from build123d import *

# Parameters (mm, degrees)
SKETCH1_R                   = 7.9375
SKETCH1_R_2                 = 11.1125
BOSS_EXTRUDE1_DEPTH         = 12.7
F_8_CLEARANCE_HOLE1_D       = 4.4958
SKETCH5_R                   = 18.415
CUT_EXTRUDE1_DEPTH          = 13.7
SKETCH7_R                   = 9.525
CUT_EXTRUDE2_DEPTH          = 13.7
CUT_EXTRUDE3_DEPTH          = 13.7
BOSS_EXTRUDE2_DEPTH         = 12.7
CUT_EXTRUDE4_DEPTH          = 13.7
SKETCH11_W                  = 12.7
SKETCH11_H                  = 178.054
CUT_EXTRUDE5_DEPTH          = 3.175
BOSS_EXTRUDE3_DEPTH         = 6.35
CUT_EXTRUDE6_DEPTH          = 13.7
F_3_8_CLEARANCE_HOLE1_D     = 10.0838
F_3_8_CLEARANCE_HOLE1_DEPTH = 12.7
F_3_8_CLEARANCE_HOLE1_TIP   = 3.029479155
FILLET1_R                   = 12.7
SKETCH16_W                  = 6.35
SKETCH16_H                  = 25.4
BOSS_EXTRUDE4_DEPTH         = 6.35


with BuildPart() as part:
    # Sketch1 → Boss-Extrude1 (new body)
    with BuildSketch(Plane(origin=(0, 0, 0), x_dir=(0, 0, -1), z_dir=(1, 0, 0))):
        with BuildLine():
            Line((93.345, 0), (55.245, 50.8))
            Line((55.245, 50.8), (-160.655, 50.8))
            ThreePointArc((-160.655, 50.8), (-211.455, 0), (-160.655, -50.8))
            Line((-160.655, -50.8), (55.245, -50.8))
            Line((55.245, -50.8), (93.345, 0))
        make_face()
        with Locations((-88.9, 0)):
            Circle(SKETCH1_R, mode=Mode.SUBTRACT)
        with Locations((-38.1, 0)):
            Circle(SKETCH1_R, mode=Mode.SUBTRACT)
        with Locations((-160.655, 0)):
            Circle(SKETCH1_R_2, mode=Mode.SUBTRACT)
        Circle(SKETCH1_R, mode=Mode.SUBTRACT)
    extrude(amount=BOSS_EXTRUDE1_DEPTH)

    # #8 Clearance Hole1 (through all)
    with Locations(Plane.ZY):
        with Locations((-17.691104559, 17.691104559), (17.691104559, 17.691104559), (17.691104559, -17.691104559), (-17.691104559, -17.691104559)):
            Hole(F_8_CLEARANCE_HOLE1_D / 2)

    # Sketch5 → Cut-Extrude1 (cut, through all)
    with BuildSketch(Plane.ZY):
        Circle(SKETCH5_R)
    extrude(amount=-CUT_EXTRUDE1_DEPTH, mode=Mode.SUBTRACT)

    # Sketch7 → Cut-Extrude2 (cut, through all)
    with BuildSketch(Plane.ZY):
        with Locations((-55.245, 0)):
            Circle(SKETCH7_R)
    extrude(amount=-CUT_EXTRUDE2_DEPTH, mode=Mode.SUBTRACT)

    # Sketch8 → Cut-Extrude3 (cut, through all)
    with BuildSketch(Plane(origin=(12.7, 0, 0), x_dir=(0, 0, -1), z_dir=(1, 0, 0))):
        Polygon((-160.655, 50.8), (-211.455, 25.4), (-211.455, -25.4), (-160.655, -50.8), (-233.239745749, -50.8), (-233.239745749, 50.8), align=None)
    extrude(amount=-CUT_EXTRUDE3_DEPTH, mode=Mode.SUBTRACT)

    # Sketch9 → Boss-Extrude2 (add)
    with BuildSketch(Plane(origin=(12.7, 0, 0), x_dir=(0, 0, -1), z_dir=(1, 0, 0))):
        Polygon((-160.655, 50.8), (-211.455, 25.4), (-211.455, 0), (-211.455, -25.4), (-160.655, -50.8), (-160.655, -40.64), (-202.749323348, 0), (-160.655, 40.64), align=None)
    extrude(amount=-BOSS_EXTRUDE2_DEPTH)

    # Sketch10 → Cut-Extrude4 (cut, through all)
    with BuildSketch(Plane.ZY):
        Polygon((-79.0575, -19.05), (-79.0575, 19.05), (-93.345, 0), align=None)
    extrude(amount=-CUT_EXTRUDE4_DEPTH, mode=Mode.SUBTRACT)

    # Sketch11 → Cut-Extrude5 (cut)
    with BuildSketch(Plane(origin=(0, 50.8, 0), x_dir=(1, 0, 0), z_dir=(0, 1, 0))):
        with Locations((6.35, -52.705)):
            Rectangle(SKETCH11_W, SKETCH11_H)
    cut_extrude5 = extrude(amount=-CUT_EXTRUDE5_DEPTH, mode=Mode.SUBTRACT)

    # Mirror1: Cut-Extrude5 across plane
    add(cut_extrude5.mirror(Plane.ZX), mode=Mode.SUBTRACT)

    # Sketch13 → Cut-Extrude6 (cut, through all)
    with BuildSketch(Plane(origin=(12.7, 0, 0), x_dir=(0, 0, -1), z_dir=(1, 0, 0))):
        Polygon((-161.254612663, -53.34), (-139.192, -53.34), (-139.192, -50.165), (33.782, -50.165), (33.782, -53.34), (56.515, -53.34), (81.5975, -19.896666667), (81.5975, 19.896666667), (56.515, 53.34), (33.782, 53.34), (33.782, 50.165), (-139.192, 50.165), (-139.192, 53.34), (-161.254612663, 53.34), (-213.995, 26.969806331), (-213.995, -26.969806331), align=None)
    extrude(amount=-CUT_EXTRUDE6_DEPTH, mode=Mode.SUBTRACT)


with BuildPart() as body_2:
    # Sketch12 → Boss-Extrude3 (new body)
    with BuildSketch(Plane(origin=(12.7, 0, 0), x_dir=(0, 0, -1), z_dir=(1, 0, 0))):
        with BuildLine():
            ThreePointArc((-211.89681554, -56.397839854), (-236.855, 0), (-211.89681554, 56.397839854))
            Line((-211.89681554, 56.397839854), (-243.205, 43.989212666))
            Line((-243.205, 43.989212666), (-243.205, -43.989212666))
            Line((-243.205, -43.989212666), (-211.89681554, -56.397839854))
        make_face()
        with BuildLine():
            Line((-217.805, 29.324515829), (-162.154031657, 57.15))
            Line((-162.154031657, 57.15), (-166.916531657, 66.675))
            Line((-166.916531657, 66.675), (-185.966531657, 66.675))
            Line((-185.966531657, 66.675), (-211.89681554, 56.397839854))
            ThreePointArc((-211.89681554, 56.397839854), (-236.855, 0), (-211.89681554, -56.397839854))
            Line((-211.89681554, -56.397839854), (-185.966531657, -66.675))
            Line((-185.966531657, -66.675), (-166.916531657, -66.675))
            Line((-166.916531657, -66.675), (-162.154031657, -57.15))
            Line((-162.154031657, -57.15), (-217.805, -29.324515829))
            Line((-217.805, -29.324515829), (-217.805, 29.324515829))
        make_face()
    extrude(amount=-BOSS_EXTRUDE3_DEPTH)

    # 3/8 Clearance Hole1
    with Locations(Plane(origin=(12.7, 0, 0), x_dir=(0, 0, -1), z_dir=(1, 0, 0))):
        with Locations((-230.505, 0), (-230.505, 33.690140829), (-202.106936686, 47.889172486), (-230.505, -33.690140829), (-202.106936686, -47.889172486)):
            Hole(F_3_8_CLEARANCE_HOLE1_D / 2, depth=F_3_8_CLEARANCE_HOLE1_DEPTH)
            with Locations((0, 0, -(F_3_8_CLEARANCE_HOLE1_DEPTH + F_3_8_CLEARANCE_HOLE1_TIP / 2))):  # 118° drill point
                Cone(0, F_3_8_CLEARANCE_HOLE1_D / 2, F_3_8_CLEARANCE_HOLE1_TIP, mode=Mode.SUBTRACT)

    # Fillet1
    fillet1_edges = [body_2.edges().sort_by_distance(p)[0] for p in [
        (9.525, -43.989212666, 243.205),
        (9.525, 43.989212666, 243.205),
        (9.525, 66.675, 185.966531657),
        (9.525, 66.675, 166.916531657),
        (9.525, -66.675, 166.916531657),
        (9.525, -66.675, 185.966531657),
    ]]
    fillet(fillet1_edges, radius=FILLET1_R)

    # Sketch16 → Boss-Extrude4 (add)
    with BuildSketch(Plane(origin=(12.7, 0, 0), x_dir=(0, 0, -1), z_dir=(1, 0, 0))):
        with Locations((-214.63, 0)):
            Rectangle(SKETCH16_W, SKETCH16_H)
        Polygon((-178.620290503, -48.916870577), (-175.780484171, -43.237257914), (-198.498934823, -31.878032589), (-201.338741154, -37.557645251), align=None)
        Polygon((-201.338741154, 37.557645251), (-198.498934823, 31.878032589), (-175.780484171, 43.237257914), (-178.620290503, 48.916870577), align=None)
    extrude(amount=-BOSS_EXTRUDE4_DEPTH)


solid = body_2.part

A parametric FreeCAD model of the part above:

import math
import FreeCAD as App
import Part
import Sketcher

V = App.Vector
Q = App.Units.Quantity


def edges_at(feature, points):
    """Names of the edges that pass closest to the given points."""
    edges = feature.Shape.Edges
    near = lambda p: min(range(len(edges)), key=lambda i: edges[i].distToShape(Part.Vertex(*p))[0])
    return sorted({f"Edge{near(p) + 1}" for p in points})


def add_polygon(sketch, points):
    """Adds a closed chain of lines whose ends are joined by coincident constraints."""
    first, n = sketch.GeometryCount, len(points)
    for a, b in zip(points, points[1:] + points[:1]):
        sketch.addGeometry(Part.LineSegment(App.Vector(*a, 0), App.Vector(*b, 0)), False)
    for i in range(n):
        sketch.addConstraint(Sketcher.Constraint("Coincident", first + i, 2, first + (i + 1) % n, 1))

doc = App.newDocument("Part")
body = doc.addObject("PartDesign::Body", "Body")

sketch1 = doc.addObject("Sketcher::SketchObject", "Sketch")
body.addObject(sketch1)
sketch1.AttachmentSupport = (doc.YZ_Plane, [""])
sketch1.MapMode = "FlatFace"
sketch1.addGeometry([
    Part.LineSegment(V(0, -93, 0), V(51, -55, 0)),
    Part.LineSegment(V(51, -55, 0), V(51, 161, 0)),
    Part.ArcOfCircle(Part.Circle(V(0, 161, 0), V(0, 0, 1), 51), math.radians(0), math.radians(180)),
    Part.LineSegment(V(-51, 161, 0), V(-51, -55, 0)),
    Part.LineSegment(V(-51, -55, 0), V(0, -93, 0)),
    Part.Circle(V(0, 161, 0), V(0, 0, 1), 11),
    Part.Circle(V(0, 89, 0), V(0, 0, 1), 8),
    Part.Circle(V(0, 38, 0), V(0, 0, 1), 8),
    Part.Circle(V(0, 0, 0), V(0, 0, 1), 8),
], False)
sketch1.addConstraint([
    Sketcher.Constraint("Coincident", 0, 2, 1, 1),
    Sketcher.Constraint("Tangent", 1, 2, 2, 1),
    Sketcher.Constraint("Tangent", 2, 2, 3, 1),
    Sketcher.Constraint("Coincident", 3, 2, 4, 1),
    Sketcher.Constraint("Coincident", 4, 2, 0, 1),
    Sketcher.Constraint("Vertical", 1),
    Sketcher.Constraint("Vertical", 3),
    Sketcher.Constraint("Coincident", 8, 3, -1, 1),
    Sketcher.Constraint("Coincident", 5, 3, 2, 3),
    Sketcher.Constraint("Equal", 6, 7),
    Sketcher.Constraint("Equal", 7, 8),
    Sketcher.Constraint("Symmetric", 0, 2, 3, 2, -2),
    Sketcher.Constraint("PointOnObject", 6, 3, -2),
    Sketcher.Constraint("PointOnObject", 7, 3, -2),
    Sketcher.Constraint("PointOnObject", 4, 2, -2),
    Sketcher.Constraint("Radius", 2, Q("2 in")),
    Sketcher.Constraint("Diameter", 5, Q("0.875 in")),
    Sketcher.Constraint("Diameter", 6, Q("0.625 in")),
    Sketcher.Constraint("DistanceY", 1, 1, 1, 2, Q("8.5 in")),
    Sketcher.Constraint("DistanceY", 7, 3, 6, 3, Q("2 in")),
    Sketcher.Constraint("Distance", 0, Q("2.5 in")),
    Sketcher.Constraint("DistanceY", -1, 1, 6, 3, Q("3.5 in")),
    Sketcher.Constraint("DistanceY", -1, 1, 2, 3, Q("6.325 in")),
])
pad1 = doc.addObject("PartDesign::Pad", "Pad")
body.addObject(pad1)
pad1.Profile = sketch1
pad1.Length = Q("0.5 in")

sketch2 = doc.addObject("Sketcher::SketchObject", "Sketch001")
body.addObject(sketch2)
sketch2.AttachmentSupport = (doc.YZ_Plane, [""])
sketch2.MapMode = "FlatFace"
sketch2.addGeometry([
    Part.Circle(V(17.7, -17.7, 0), V(0, 0, 1), 2.2),
    Part.Circle(V(17.7, 17.7, 0), V(0, 0, 1), 2.2),
    Part.Circle(V(-17.7, 17.7, 0), V(0, 0, 1), 2.2),
    Part.Circle(V(-17.7, -17.7, 0), V(0, 0, 1), 2.2),
], False)
sketch2.addConstraint([
    Sketcher.Constraint("Equal", 0, 1),
    Sketcher.Constraint("Equal", 1, 2),
    Sketcher.Constraint("Equal", 2, 3),
    Sketcher.Constraint("Symmetric", 0, 3, 2, 3, -1, 1),
    Sketcher.Constraint("Symmetric", 1, 3, 3, 3, -1, 1),
    Sketcher.Constraint("Symmetric", 1, 3, 2, 3, -2),
    Sketcher.Constraint("Diameter", 0, Q("0.177 in")),
    Sketcher.Constraint("DistanceX", -1, 1, 0, 3, Q("0.6965002 in")),
    Sketcher.Constraint("DistanceY", 0, 3, -1, 1, Q("0.6965002 in")),
])
doc.recompute()
hole = doc.addObject("PartDesign::Hole", "Hole")
body.addObject(hole)
hole.Profile = sketch2
hole.ThreadType = "None"
hole.Diameter = Q("0.177 in")
hole.DepthType = "ThroughAll"
hole.Reversed = True

sketch3 = doc.addObject("Sketcher::SketchObject", "Sketch002")
body.addObject(sketch3)
sketch3.AttachmentSupport = (doc.YZ_Plane, [""])
sketch3.MapMode = "FlatFace"
sketch3.addGeometry(Part.Circle(V(0, 0, 0), V(0, 0, 1), 18), False)
sketch3.addConstraint([
    Sketcher.Constraint("Coincident", 0, 3, -1, 1),
    Sketcher.Constraint("Diameter", 0, Q("1.45 in")),
])
pocket1 = doc.addObject("PartDesign::Pocket", "Pocket")
body.addObject(pocket1)
pocket1.Profile = sketch3
pocket1.Type = "ThroughAll"
pocket1.Reversed = True

sketch4 = doc.addObject("Sketcher::SketchObject", "Sketch003")
body.addObject(sketch4)
sketch4.AttachmentSupport = (doc.YZ_Plane, [""])
sketch4.MapMode = "FlatFace"
sketch4.addGeometry(Part.Circle(V(0, -55, 0), V(0, 0, 1), 10), False)
sketch4.addConstraint([
    Sketcher.Constraint("PointOnObject", 0, 3, -2),
    Sketcher.Constraint("Diameter", 0, Q("0.75 in")),
    Sketcher.Constraint("DistanceY", 0, 3, -1, 1, Q("2.175 in")),
])
pocket2 = doc.addObject("PartDesign::Pocket", "Pocket001")
body.addObject(pocket2)
pocket2.Profile = sketch4
pocket2.Type = "ThroughAll"
pocket2.Reversed = True

sketch5 = doc.addObject("Sketcher::SketchObject", "Sketch004")
body.addObject(sketch5)
sketch5.AttachmentSupport = (doc.YZ_Plane, [""])
sketch5.MapMode = "FlatFace"
sketch5.AttachmentOffset = App.Placement(V(0, 0, 0.5 * 25.4), App.Rotation())
add_polygon(sketch5, [(25, 211), (51, 161), (51, 233), (-51, 233), (-51, 161), (-25, 211)])
sketch5.addConstraint([
    Sketcher.Constraint("Vertical", 1),
    Sketcher.Constraint("Horizontal", 2),
    Sketcher.Constraint("Vertical", 3),
    Sketcher.Constraint("Horizontal", 5),
    Sketcher.Constraint("Symmetric", 0, 2, 3, 2, -2),
    Sketcher.Constraint("Equal", 0, 4),
    Sketcher.Constraint("DistanceX", 2, 2, 2, 1, Q("4 in")),
    Sketcher.Constraint("DistanceX", 5, 1, 5, 2, Q("2 in")),
    Sketcher.Constraint("DistanceY", 3, 2, 4, 2, Q("2 in")),
    Sketcher.Constraint("DistanceY", -1, 1, 0, 2, Q("6.325 in")),
    Sketcher.Constraint("DistanceY", 1, 1, 1, 2, Q("72.584746 mm")),
])
pocket3 = doc.addObject("PartDesign::Pocket", "Pocket002")
body.addObject(pocket3)
pocket3.Profile = sketch5
pocket3.Type = "ThroughAll"

sketch6 = doc.addObject("Sketcher::SketchObject", "Sketch005")
body.addObject(sketch6)
sketch6.AttachmentSupport = (doc.YZ_Plane, [""])
sketch6.MapMode = "FlatFace"
sketch6.AttachmentOffset = App.Placement(V(0, 0, 0.5 * 25.4), App.Rotation())
add_polygon(sketch6, [(51, 161), (25, 211), (-25, 211), (-51, 161), (-41, 161), (0, 203), (41, 161)])
sketch6.addConstraint([
    Sketcher.Constraint("Horizontal", 1),
    Sketcher.Constraint("Horizontal", 3),
    Sketcher.Constraint("Horizontal", 6),
    Sketcher.Constraint("Symmetric", 3, 2, 5, 2, -2),
    Sketcher.Constraint("PointOnObject", 4, 2, -2),
    Sketcher.Constraint("Equal", 3, 6),
    Sketcher.Constraint("Equal", 0, 2),
    Sketcher.Constraint("DistanceX", 1, 2, 1, 1, Q("2 in")),
    Sketcher.Constraint("DistanceX", 3, 1, 3, 2, Q("0.4 in")),
    Sketcher.Constraint("DistanceX", 2, 2, -1, 1, Q("2 in")),
    Sketcher.Constraint("DistanceY", 2, 2, 1, 2, Q("2 in")),
    Sketcher.Constraint("DistanceY", -1, 1, 0, 2, Q("8.325 in")),
    Sketcher.Constraint("Distance", 4, Q("58.511039 mm")),
])
pad2 = doc.addObject("PartDesign::Pad", "Pad001")
body.addObject(pad2)
pad2.Profile = sketch6
pad2.Length = Q("0.5 in")
pad2.Reversed = True

sketch7 = doc.addObject("Sketcher::SketchObject", "Sketch006")
body.addObject(sketch7)
sketch7.AttachmentSupport = (doc.YZ_Plane, [""])
sketch7.MapMode = "FlatFace"
add_polygon(sketch7, [(-19, -79), (19, -79), (0, -93)])
sketch7.addConstraint([
    Sketcher.Constraint("Horizontal", 0),
    Sketcher.Constraint("PointOnObject", 1, 2, -2),
    Sketcher.Constraint("Equal", 1, 2),
    Sketcher.Constraint("DistanceX", 0, 1, 0, 2, Q("1.5 in")),
    Sketcher.Constraint("Distance", 1, Q("0.9375 in")),
    Sketcher.Constraint("DistanceY", 1, 2, -1, 1, Q("3.675 in")),
])
pocket4 = doc.addObject("PartDesign::Pocket", "Pocket003")
body.addObject(pocket4)
pocket4.Profile = sketch7
pocket4.Type = "ThroughAll"
pocket4.Reversed = True

sketch8 = doc.addObject("Sketcher::SketchObject", "Sketch007")
body.addObject(sketch8)
sketch8.AttachmentSupport = (doc.XZ_Plane, [""])
sketch8.MapMode = "FlatFace"
sketch8.AttachmentOffset = App.Placement(V(0, 0, -2 * 25.4), App.Rotation())
add_polygon(sketch8, [(0, -36), (0, 142), (13, 142), (13, -36)])
sketch8.addConstraint([
    Sketcher.Constraint("Vertical", 0),
    Sketcher.Constraint("Horizontal", 1),
    Sketcher.Constraint("Vertical", 2),
    Sketcher.Constraint("Horizontal", 3),
    Sketcher.Constraint("PointOnObject", 0, 2, -2),
    Sketcher.Constraint("DistanceX", 1, 1, 1, 2, Q("0.5 in")),
    Sketcher.Constraint("DistanceY", 0, 1, 0, 2, Q("7.01 in")),
    Sketcher.Constraint("DistanceY", -1, 1, 0, 2, Q("5.58 in")),
])
pocket5 = doc.addObject("PartDesign::Pocket", "Pocket004")
body.addObject(pocket5)
pocket5.Profile = sketch8
pocket5.Length = Q("0.125 in")
pocket5.Reversed = True
doc.recompute()

mirrored = doc.addObject("PartDesign::Mirrored", "Mirrored")
body.addObject(mirrored)
mirrored.Originals = [pocket5]
mirrored.MirrorPlane = (doc.XZ_Plane, [""])
body.Tip = mirrored

sketch9 = doc.addObject("Sketcher::SketchObject", "Sketch008")
body.addObject(sketch9)
sketch9.AttachmentSupport = (doc.YZ_Plane, [""])
sketch9.MapMode = "FlatFace"
sketch9.AttachmentOffset = App.Placement(V(0, 0, 0.5 * 25.4), App.Rotation())
add_polygon(sketch9, [(-53.3, 161.3), (-53.3, 139.2), (-50.2, 139.2), (-50.2, -33.8), (-53.3, -33.8), (-53.3, -56.5), (-19.9, -81.6), (19.9, -81.6), (53.3, -56.5), (53.3, -33.8), (50.2, -33.8), (50.2, 139.2), (53.3, 139.2), (53.3, 161.3), (27, 214), (-27, 214)])
sketch9.addConstraint([
    Sketcher.Constraint("Vertical", 0),
    Sketcher.Constraint("Horizontal", 1),
    Sketcher.Constraint("Vertical", 2),
    Sketcher.Constraint("Horizontal", 3),
    Sketcher.Constraint("Vertical", 4),
    Sketcher.Constraint("Horizontal", 6),
    Sketcher.Constraint("Vertical", 8),
    Sketcher.Constraint("Horizontal", 9),
    Sketcher.Constraint("Vertical", 10),
    Sketcher.Constraint("Horizontal", 11),
    Sketcher.Constraint("Vertical", 12),
    Sketcher.Constraint("Horizontal", 14),
    Sketcher.Constraint("Symmetric", 4, 2, 7, 2, -2),
    Sketcher.Constraint("Symmetric", 2, 2, 9, 2, -2),
    Sketcher.Constraint("Symmetric", 0, 2, 11, 2, -2),
    Sketcher.Constraint("Horizontal", 12, 2, 15, 2),
    Sketcher.Constraint("Vertical", 0, 2, 3, 2),
    Sketcher.Constraint("Equal", 5, 7),
    Sketcher.Constraint("Equal", 13, 15),
    Sketcher.Constraint("DistanceY", 2, 2, 2, 1, Q("6.81 in")),
    Sketcher.Constraint("DistanceX", 0, 2, -1, 1, Q("2.1 in")),
    Sketcher.Constraint("DistanceX", 1, 1, 1, 2, Q("0.125 in")),
    Sketcher.Constraint("DistanceY", 4, 2, 4, 1, Q("0.895 in")),
    Sketcher.Constraint("DistanceY", -1, 1, 0, 2, Q("5.48 in")),
    Sketcher.Constraint("DistanceY", -1, 1, 13, 2, Q("8.425 in")),
    Sketcher.Constraint("DistanceY", 5, 2, -1, 1, Q("3.2125 in")),
    Sketcher.Constraint("DistanceX", 6, 1, 6, 2, Q("39.793333 mm")),
    Sketcher.Constraint("DistanceX", 14, 2, 14, 1, Q("53.939613 mm")),
    Sketcher.Constraint("DistanceY", 0, 2, 0, 1, Q("22.062613 mm")),
])
pocket6 = doc.addObject("PartDesign::Pocket", "Pocket005")
body.addObject(pocket6)
pocket6.Profile = sketch9
pocket6.Type = "ThroughAll"
body2 = doc.addObject("PartDesign::Body", "Body001")

sketch10 = doc.addObject("Sketcher::SketchObject", "Sketch009")
body2.addObject(sketch10)
sketch10.AttachmentSupport = (doc.getObject("YZ_Plane001"), [""])
sketch10.MapMode = "FlatFace"
sketch10.AttachmentOffset = App.Placement(V(0, 0, 0.5 * 25.4), App.Rotation())
add_polygon(sketch10, [(56, 212), (44, 243), (-44, 243), (-56, 212), (-67, 186), (-67, 167), (-57, 162), (-29, 218), (29, 218), (57, 162), (67, 167), (67, 186)])
sketch10.addConstraint([
    Sketcher.Constraint("Horizontal", 1),
    Sketcher.Constraint("Vertical", 4),
    Sketcher.Constraint("Horizontal", 7),
    Sketcher.Constraint("Vertical", 10),
    Sketcher.Constraint("Symmetric", 5, 2, 8, 2, -2),
    Sketcher.Constraint("Symmetric", 4, 2, 9, 2, -2),
    Sketcher.Constraint("Symmetric", 2, 2, 11, 2, -2),
    Sketcher.Constraint("Parallel", 2, 3),
    Sketcher.Constraint("Perpendicular", 5, 6),
    Sketcher.Constraint("Perpendicular", 8, 9),
    Sketcher.Constraint("Parallel", 0, 11),
    Sketcher.Constraint("Horizontal", 3, 2, 10, 2),
    Sketcher.Constraint("DistanceY", 6, 2, 1, 2, Q("1 in")),
    Sketcher.Constraint("DistanceY", 4, 2, 4, 1, Q("0.75 in")),
    Sketcher.Constraint("DistanceX", 5, 2, 8, 2, Q("4.5 in")),
    Sketcher.Constraint("DistanceY", -1, 1, 0, 2, Q("9.575 in")),
    Sketcher.Constraint("DistanceX", 3, 2, -1, 1, Q("2.625 in")),
    Sketcher.Constraint("DistanceY", 5, 2, 4, 2, Q("0.1875 in")),
    Sketcher.Constraint("DistanceX", 7, 1, 7, 2, Q("58.649032 mm")),
    Sketcher.Constraint("DistanceX", 1, 2, 1, 1, Q("87.978425 mm")),
    Sketcher.Constraint("DistanceX", 2, 2, -1, 1, Q("56.39784 mm")),
])
pad3 = doc.addObject("PartDesign::Pad", "Pad002")
body2.addObject(pad3)
pad3.Profile = sketch10
pad3.Length = Q("0.25 in")
pad3.Reversed = True

sketch11 = doc.addObject("Sketcher::SketchObject", "Sketch010")
body2.addObject(sketch11)
sketch11.AttachmentSupport = (doc.getObject("YZ_Plane001"), [""])
sketch11.MapMode = "FlatFace"
sketch11.AttachmentOffset = App.Placement(V(0, 0, 0.5 * 25.4), App.Rotation())
sketch11.addGeometry([
    Part.Circle(V(0, 231, 0), V(0, 0, 1), 5),
    Part.Circle(V(34, 231, 0), V(0, 0, 1), 5),
    Part.Circle(V(48, 202, 0), V(0, 0, 1), 5),
    Part.Circle(V(-34, 231, 0), V(0, 0, 1), 5),
    Part.Circle(V(-48, 202, 0), V(0, 0, 1), 5),
], False)
sketch11.addConstraint([
    Sketcher.Constraint("Equal", 0, 1),
    Sketcher.Constraint("Equal", 1, 2),
    Sketcher.Constraint("Equal", 2, 3),
    Sketcher.Constraint("Equal", 3, 4),
    Sketcher.Constraint("Symmetric", 1, 3, 3, 3, -2),
    Sketcher.Constraint("Symmetric", 2, 3, 4, 3, -2),
    Sketcher.Constraint("PointOnObject", 0, 3, -2),
    Sketcher.Constraint("Horizontal", 0, 3, 1, 3),
    Sketcher.Constraint("Diameter", 0, Q("0.397 in")),
    Sketcher.Constraint("DistanceY", -1, 1, 0, 3, Q("9.075 in")),
    Sketcher.Constraint("DistanceX", -1, 1, 1, 3, Q("33.690141 mm")),
    Sketcher.Constraint("DistanceX", 1, 3, 2, 3, Q("14.199032 mm")),
    Sketcher.Constraint("DistanceY", -1, 1, 2, 3, Q("202.106937 mm")),
])
doc.recompute()
hole2 = doc.addObject("PartDesign::Hole", "Hole001")
body2.addObject(hole2)
hole2.Profile = sketch11
hole2.ThreadType = "None"
hole2.Diameter = Q("0.397 in")
hole2.DepthType = "Dimension"
hole2.Depth = Q("0.5 in")
hole2.DrillPoint = "Angled"
hole2.DrillPointAngle = 118
doc.recompute()

fillet = doc.addObject("PartDesign::Fillet", "Fillet")
body2.addObject(fillet)
fillet.Base = (hole2, edges_at(hole2, [
    (9.525, -43.989, 243.205),
    (9.525, 43.989, 243.205),
    (9.525, 66.675, 185.967),
    (9.525, 66.675, 166.917),
    (9.525, -66.675, 166.917),
    (9.525, -66.675, 185.967),
]))
fillet.Radius = Q("0.5 in")

sketch12 = doc.addObject("Sketcher::SketchObject", "Sketch011")
body2.addObject(sketch12)
sketch12.AttachmentSupport = (doc.getObject("YZ_Plane001"), [""])
sketch12.MapMode = "FlatFace"
sketch12.AttachmentOffset = App.Placement(V(0, 0, 0.5 * 25.4), App.Rotation())
add_polygon(sketch12, [(13, 218), (-13, 218), (-13, 211), (13, 211)])
add_polygon(sketch12, [(-49, 179), (-43, 176), (-32, 198), (-38, 201)])
add_polygon(sketch12, [(38, 201), (32, 198), (43, 176), (49, 179)])
sketch12.addConstraint([
    Sketcher.Constraint("Horizontal", 0),
    Sketcher.Constraint("Vertical", 1),
    Sketcher.Constraint("Horizontal", 2),
    Sketcher.Constraint("Vertical", 3),
    Sketcher.Constraint("Symmetric", 5, 2, 8, 2, -2),
    Sketcher.Constraint("Symmetric", 4, 2, 9, 2, -2),
    Sketcher.Constraint("Symmetric", 7, 2, 10, 2, -2),
    Sketcher.Constraint("Symmetric", 6, 2, 11, 2, -2),
    Sketcher.Constraint("Perpendicular", 4, 5),
    Sketcher.Constraint("Perpendicular", 5, 6),
    Sketcher.Constraint("Perpendicular", 6, 7),
    Sketcher.Constraint("DistanceX", 0, 2, 0, 1, Q("1 in")),
    Sketcher.Constraint("Distance", 5, Q("1 in")),
    Sketcher.Constraint("DistanceY", 1, 2, 1, 1, Q("0.25 in")),
    Sketcher.Constraint("DistanceX", 0, 2, -1, 1, Q("0.5 in")),
    Sketcher.Constraint("Distance", 4, Q("0.25 in")),
    Sketcher.Constraint("DistanceY", -1, 1, 0, 2, Q("8.575 in")),
    Sketcher.Constraint("DistanceY", -1, 1, 6, 2, Q("201.338741 mm")),
    Sketcher.Constraint("DistanceX", 7, 2, -1, 1, Q("48.916871 mm")),
    Sketcher.Constraint("DistanceY", -1, 1, 7, 2, Q("178.620291 mm")),
])
pad4 = doc.addObject("PartDesign::Pad", "Pad003")
body2.addObject(pad4)
pad4.Profile = sketch12
pad4.Length = Q("0.25 in")
pad4.Reversed = True

doc.recompute()
